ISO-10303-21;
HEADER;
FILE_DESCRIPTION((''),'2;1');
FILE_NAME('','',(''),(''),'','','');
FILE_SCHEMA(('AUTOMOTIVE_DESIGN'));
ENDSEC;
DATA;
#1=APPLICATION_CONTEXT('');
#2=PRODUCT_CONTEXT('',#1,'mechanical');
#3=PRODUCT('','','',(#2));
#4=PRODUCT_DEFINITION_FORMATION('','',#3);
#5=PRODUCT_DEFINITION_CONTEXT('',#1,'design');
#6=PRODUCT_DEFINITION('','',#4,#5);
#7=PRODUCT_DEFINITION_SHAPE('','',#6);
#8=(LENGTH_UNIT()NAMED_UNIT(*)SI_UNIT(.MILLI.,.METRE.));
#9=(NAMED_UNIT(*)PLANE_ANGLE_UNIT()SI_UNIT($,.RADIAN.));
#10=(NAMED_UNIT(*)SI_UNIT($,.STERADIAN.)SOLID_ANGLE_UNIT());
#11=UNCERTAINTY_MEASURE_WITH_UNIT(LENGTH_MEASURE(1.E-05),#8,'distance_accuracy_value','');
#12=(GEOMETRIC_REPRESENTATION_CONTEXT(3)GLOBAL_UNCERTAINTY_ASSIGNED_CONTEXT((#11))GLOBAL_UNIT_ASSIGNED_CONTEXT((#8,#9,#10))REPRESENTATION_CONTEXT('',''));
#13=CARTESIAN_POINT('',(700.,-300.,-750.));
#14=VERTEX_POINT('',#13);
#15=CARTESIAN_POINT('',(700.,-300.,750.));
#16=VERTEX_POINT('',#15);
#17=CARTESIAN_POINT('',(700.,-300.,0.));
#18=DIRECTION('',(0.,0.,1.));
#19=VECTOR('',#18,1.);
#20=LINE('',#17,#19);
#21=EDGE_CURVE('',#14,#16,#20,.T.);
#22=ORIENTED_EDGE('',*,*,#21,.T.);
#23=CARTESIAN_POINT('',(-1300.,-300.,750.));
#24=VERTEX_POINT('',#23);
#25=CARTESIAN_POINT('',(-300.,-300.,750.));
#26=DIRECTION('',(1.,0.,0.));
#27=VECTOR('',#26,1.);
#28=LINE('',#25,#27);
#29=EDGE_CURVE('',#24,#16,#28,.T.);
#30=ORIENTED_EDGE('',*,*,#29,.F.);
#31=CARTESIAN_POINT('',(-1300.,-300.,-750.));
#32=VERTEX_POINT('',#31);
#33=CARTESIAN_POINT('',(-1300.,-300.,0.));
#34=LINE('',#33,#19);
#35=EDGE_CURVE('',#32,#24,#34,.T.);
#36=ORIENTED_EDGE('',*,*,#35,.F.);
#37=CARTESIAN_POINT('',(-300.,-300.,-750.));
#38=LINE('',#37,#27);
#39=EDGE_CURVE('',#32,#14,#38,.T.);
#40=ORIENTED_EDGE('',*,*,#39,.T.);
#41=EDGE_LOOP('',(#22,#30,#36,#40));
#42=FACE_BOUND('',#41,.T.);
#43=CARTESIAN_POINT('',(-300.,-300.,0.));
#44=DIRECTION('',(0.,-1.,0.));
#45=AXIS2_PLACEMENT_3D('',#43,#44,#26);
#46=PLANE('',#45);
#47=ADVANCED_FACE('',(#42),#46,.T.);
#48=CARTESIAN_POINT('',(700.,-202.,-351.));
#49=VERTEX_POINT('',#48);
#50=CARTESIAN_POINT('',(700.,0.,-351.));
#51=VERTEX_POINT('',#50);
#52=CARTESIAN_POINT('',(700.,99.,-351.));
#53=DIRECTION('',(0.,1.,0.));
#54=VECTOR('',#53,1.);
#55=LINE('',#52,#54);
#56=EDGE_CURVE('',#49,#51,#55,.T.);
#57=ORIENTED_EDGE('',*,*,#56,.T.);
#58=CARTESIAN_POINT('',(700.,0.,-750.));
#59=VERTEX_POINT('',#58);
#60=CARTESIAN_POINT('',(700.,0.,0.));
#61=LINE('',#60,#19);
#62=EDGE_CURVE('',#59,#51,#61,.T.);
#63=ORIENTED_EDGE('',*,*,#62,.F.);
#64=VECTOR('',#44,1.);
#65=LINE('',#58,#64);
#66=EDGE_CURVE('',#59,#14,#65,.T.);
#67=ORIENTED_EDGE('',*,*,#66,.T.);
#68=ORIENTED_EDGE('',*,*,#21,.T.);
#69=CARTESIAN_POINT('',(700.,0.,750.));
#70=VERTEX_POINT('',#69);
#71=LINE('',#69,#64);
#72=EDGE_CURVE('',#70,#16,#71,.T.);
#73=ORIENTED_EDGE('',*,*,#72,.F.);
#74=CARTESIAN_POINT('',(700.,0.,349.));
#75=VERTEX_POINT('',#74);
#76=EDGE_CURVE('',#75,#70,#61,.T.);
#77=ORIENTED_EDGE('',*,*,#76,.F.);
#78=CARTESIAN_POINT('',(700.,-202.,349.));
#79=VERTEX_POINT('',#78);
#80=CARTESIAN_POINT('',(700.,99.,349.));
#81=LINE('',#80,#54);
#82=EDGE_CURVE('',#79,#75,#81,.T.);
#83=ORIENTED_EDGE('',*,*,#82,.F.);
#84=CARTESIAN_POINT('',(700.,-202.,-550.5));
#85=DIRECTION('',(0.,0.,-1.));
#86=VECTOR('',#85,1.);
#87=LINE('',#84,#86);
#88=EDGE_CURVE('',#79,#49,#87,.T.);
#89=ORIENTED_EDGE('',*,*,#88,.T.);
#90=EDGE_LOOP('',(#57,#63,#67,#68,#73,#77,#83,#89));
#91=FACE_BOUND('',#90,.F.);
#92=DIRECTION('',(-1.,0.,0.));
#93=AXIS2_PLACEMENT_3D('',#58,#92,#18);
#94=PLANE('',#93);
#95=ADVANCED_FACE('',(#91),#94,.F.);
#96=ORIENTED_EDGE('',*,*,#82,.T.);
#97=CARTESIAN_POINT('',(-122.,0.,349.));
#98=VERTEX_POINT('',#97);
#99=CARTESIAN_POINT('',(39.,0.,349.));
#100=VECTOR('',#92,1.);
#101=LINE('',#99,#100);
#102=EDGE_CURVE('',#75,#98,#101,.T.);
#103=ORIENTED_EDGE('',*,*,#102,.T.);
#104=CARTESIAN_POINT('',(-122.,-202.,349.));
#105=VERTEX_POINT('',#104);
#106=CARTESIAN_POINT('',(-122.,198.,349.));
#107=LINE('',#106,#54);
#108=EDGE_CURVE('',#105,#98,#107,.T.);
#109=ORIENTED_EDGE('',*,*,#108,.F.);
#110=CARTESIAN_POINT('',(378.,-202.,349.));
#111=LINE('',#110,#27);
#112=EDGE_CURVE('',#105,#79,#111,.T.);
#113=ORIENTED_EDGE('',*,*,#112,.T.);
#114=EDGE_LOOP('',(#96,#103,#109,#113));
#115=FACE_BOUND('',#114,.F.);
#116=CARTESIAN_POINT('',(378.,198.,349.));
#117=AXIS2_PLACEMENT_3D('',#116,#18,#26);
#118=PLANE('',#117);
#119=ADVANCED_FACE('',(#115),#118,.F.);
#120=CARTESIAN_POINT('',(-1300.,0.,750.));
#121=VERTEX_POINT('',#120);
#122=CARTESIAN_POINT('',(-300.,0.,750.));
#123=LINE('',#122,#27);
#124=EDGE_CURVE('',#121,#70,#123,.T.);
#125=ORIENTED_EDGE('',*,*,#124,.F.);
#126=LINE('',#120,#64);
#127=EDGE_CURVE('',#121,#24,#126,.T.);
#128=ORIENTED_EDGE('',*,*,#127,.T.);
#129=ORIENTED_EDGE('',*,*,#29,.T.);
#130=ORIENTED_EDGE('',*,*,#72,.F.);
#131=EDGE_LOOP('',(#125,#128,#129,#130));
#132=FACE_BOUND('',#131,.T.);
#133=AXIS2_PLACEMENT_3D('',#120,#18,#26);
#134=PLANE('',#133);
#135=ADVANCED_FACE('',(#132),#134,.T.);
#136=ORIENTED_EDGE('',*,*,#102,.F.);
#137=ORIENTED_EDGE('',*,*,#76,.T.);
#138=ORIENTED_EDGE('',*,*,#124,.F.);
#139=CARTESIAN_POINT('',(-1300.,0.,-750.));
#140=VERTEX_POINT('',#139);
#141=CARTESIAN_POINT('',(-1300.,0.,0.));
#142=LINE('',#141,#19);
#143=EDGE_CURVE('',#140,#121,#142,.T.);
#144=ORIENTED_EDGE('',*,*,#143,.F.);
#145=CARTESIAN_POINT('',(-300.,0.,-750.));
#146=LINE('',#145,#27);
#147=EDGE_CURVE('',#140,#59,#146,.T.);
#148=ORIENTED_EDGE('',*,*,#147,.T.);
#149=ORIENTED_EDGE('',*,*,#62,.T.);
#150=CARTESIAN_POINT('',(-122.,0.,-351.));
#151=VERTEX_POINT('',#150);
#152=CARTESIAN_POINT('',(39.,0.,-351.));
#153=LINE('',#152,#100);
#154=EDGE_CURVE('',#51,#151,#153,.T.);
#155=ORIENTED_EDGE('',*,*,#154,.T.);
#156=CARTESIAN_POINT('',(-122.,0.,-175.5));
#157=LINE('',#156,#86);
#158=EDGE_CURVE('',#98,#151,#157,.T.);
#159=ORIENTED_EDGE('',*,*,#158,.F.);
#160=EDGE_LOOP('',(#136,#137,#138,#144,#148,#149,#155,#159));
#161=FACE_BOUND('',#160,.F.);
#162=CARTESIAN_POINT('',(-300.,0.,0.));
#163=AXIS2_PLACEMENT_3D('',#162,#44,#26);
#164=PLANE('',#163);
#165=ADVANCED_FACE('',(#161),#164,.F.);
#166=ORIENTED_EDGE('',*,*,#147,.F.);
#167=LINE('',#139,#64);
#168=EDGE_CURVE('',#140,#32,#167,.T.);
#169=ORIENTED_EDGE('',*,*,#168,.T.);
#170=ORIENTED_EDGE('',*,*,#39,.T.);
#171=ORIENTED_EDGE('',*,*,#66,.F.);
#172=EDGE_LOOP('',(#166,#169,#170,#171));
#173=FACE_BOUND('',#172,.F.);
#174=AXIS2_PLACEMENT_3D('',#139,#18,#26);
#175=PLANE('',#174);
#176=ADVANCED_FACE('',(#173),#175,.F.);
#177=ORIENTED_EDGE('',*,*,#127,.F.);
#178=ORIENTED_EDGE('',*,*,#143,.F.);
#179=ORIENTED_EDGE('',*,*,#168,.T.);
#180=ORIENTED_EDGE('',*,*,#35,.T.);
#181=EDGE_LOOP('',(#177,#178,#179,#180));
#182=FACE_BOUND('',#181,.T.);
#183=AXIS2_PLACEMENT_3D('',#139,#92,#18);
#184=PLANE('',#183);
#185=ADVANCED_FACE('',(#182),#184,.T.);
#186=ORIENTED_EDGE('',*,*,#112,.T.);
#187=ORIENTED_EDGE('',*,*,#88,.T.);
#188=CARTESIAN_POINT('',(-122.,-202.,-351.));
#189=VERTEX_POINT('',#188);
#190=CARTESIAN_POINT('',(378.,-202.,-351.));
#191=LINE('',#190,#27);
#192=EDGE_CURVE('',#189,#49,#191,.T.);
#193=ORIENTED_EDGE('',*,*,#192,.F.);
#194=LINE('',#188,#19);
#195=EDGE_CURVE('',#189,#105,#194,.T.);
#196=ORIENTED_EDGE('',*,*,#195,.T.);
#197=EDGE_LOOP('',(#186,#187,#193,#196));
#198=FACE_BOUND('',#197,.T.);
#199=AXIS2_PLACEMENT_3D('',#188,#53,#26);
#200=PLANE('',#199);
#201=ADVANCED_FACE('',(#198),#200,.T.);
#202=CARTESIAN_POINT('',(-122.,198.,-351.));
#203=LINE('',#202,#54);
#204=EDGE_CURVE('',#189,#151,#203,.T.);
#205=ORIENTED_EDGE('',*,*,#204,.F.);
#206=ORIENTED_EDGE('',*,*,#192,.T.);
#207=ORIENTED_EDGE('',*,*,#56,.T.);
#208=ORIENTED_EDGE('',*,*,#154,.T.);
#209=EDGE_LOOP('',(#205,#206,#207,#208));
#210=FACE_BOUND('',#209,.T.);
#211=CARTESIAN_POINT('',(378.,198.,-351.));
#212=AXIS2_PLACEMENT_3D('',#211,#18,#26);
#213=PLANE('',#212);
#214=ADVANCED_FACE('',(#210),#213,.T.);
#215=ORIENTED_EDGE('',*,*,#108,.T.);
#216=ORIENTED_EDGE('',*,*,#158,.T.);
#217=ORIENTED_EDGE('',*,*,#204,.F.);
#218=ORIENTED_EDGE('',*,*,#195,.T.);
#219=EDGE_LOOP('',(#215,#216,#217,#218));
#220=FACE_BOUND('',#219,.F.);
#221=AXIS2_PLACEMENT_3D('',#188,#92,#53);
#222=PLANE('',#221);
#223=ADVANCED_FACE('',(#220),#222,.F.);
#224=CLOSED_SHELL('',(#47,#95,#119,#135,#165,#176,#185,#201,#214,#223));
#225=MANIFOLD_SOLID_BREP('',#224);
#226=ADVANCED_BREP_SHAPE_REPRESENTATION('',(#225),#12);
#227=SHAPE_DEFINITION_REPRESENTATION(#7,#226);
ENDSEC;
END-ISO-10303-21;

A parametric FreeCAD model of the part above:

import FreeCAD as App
import Part
import Sketcher
Q = App.Units.Quantity


def add_polygon(sketch, points):
    """Adds a closed chain of lines whose ends are joined by coincident constraints."""
    first, n = sketch.GeometryCount, len(points)
    for a, b in zip(points, points[1:] + points[:1]):
        sketch.addGeometry(Part.LineSegment(App.Vector(*a, 0), App.Vector(*b, 0)), False)
    for i in range(n):
        sketch.addConstraint(Sketcher.Constraint("Coincident", first + i, 2, first + (i + 1) % n, 1))

doc = App.newDocument("Part")
body = doc.addObject("PartDesign::Body", "Body")

# Sketch on XY plane
sketch1 = body.newObject("Sketcher::SketchObject", "Sketch")
sketch1.AttachmentSupport = (doc.getObject("XY_Plane"), [""])
sketch1.MapMode = "FlatFace"
sketch1.AttachmentOffset = App.Placement(App.Vector(0, 0, -351), App.Rotation())
add_polygon(sketch1, [(-122, 598), (-122, -202), (878, -202), (878, 598)])  # lines 0-3
sketch1.addConstraint(Sketcher.Constraint("Vertical", 0))
sketch1.addConstraint(Sketcher.Constraint("Horizontal", 1))
sketch1.addConstraint(Sketcher.Constraint("Vertical", 2))
sketch1.addConstraint(Sketcher.Constraint("Horizontal", 3))
sketch1.addConstraint(Sketcher.Constraint("DistanceX", 1, 1, 1, 2, Q("1000 mm")))
sketch1.addConstraint(Sketcher.Constraint("DistanceY", 0, 2, 0, 1, Q("800 mm")))
sketch1.addConstraint(Sketcher.Constraint("DistanceX", 0, 2, -1, 1, Q("122 mm")))
sketch1.addConstraint(Sketcher.Constraint("DistanceY", 0, 2, -1, 1, Q("202 mm")))
pad1 = body.newObject("PartDesign::Pad", "Pad")
pad1.Profile = sketch1
pad1.Length = 700
body2 = doc.addObject("PartDesign::Body", "Body001")

# Sketch on XZ plane
sketch2 = body2.newObject("Sketcher::SketchObject", "Sketch001")
sketch2.AttachmentSupport = (doc.getObject("XZ_Plane001"), [""])
sketch2.MapMode = "FlatFace"
add_polygon(sketch2, [(-1300, 750), (-1300, -750), (700, -750), (700, 750)])  # lines 0-3
sketch2.addConstraint(Sketcher.Constraint("Vertical", 0))
sketch2.addConstraint(Sketcher.Constraint("Horizontal", 1))
sketch2.addConstraint(Sketcher.Constraint("Vertical", 2))
sketch2.addConstraint(Sketcher.Constraint("Horizontal", 3))
sketch2.addConstraint(Sketcher.Constraint("DistanceX", 1, 1, 1, 2, Q("2000 mm")))
sketch2.addConstraint(Sketcher.Constraint("DistanceY", 0, 2, 0, 1, Q("1500 mm")))
sketch2.addConstraint(Sketcher.Constraint("DistanceX", 0, 2, -1, 1, Q("1300 mm")))
sketch2.addConstraint(Sketcher.Constraint("DistanceY", 0, 2, -1, 1, Q("750 mm")))
pad2 = body2.newObject("PartDesign::Pad", "Pad001")
pad2.Profile = sketch2
pad2.Length = 300
doc.recompute()

boolean = body2.newObject("PartDesign::Boolean", "Boolean")
boolean.Type = "Cut"
boolean.addObjects([body])

doc.recompute()
